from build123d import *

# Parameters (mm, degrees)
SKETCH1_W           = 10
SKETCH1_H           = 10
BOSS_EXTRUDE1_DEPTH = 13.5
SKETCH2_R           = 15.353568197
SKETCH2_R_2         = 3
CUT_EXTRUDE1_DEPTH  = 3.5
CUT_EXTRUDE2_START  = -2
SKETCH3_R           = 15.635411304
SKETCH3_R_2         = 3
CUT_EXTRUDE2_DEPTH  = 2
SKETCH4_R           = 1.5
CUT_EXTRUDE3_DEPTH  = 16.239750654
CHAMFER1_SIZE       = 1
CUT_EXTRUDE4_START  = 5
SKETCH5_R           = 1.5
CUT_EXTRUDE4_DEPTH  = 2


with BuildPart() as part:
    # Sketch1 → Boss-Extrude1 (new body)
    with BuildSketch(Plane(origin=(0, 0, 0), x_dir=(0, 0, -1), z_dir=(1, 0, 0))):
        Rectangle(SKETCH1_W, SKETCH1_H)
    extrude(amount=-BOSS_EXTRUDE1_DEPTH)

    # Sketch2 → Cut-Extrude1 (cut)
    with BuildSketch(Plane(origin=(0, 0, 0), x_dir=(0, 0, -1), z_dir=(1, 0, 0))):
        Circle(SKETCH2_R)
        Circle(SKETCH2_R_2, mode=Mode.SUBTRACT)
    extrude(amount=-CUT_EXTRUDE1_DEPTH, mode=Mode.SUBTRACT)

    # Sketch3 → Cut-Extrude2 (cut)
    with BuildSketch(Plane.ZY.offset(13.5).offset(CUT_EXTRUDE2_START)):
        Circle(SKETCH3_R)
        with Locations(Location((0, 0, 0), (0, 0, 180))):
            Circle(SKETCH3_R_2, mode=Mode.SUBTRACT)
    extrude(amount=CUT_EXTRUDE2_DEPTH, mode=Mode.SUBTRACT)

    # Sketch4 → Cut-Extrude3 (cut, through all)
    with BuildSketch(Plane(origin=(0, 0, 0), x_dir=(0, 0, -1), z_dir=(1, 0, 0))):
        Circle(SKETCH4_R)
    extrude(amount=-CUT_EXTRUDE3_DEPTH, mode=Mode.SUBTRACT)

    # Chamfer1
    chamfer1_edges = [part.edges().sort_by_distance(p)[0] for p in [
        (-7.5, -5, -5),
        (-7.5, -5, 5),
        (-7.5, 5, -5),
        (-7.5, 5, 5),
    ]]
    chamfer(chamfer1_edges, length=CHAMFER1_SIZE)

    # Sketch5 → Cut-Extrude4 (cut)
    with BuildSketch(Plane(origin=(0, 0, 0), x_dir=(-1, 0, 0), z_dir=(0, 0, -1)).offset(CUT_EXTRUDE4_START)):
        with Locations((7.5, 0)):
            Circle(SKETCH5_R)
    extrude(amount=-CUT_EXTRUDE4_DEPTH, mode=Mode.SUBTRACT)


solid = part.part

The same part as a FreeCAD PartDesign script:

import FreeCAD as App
import Part
import Sketcher

V = App.Vector
Q = App.Units.Quantity


def edges_at(feature, points):
    """Names of the edges that pass closest to the given points."""
    edges = feature.Shape.Edges
    near = lambda p: min(range(len(edges)), key=lambda i: edges[i].distToShape(Part.Vertex(*p))[0])
    return sorted({f"Edge{near(p) + 1}" for p in points})


def add_polygon(sketch, points):
    """Adds a closed chain of lines whose ends are joined by coincident constraints."""
    first, n = sketch.GeometryCount, len(points)
    for a, b in zip(points, points[1:] + points[:1]):
        sketch.addGeometry(Part.LineSegment(App.Vector(*a, 0), App.Vector(*b, 0)), False)
    for i in range(n):
        sketch.addConstraint(Sketcher.Constraint("Coincident", first + i, 2, first + (i + 1) % n, 1))

doc = App.newDocument("Part")
body = doc.addObject("PartDesign::Body", "Body")

# Sketch on YZ plane
sketch1 = body.newObject("Sketcher::SketchObject", "Sketch")
sketch1.AttachmentSupport = (doc.getObject("YZ_Plane"), [""])
sketch1.MapMode = "FlatFace"
add_polygon(sketch1, [(5, 5), (-5, 5), (-5, -5), (5, -5)])  # lines 0-3
sketch1.addConstraint(Sketcher.Constraint("Horizontal", 0))
sketch1.addConstraint(Sketcher.Constraint("Vertical", 1))
sketch1.addConstraint(Sketcher.Constraint("Horizontal", 2))
sketch1.addConstraint(Sketcher.Constraint("Vertical", 3))
sketch1.addConstraint(Sketcher.Constraint("Symmetric", 0, 2, 2, 2, -1, 1))
sketch1.addConstraint(Sketcher.Constraint("Equal", 2, 1))
sketch1.addConstraint(Sketcher.Constraint("DistanceX", 0, 2, 0, 1, Q("10 mm")))
pad1 = body.newObject("PartDesign::Pad", "Pad")
pad1.Profile = sketch1
pad1.Length = 13.5
pad1.Reversed = True

# Sketch on YZ plane
sketch2 = body.newObject("Sketcher::SketchObject", "Sketch001")
sketch2.AttachmentSupport = (doc.getObject("YZ_Plane"), [""])
sketch2.MapMode = "FlatFace"
sketch2.addGeometry(Part.Circle(V(0, 0, 0), V(0, 0, 1), 15.4), False)
sketch2.addGeometry(Part.Circle(V(0, 0, 0), V(0, 0, 1), 3), False)
sketch2.addConstraint(Sketcher.Constraint("Coincident", 0, 3, -1, 1))
sketch2.addConstraint(Sketcher.Constraint("Coincident", 1, 3, -1, 1))
sketch2.addConstraint(Sketcher.Constraint("Diameter", 1, Q("6 mm")))
sketch2.addConstraint(Sketcher.Constraint("Diameter", 0, Q("30.707136 mm")))
pocket1 = body.newObject("PartDesign::Pocket", "Pocket")
pocket1.Profile = sketch2
pocket1.Length = 3.5

# Sketch on YZ plane
sketch3 = body.newObject("Sketcher::SketchObject", "Sketch002")
sketch3.AttachmentSupport = (doc.getObject("YZ_Plane"), [""])
sketch3.MapMode = "FlatFace"
sketch3.AttachmentOffset = App.Placement(V(0, 0, -11.5), App.Rotation())
sketch3.addGeometry(Part.Circle(V(0, 0, 0), V(0, 0, 1), 15.6), False)
sketch3.addGeometry(Part.Circle(V(0, 0, 0), V(0, 0, 1), 3), False)
sketch3.addConstraint(Sketcher.Constraint("Coincident", 0, 3, -1, 1))
sketch3.addConstraint(Sketcher.Constraint("Coincident", 1, 3, -1, 1))
sketch3.addConstraint(Sketcher.Constraint("Diameter", 1, Q("6 mm")))
sketch3.addConstraint(Sketcher.Constraint("Diameter", 0, Q("31.270823 mm")))
pocket2 = body.newObject("PartDesign::Pocket", "Pocket001")
pocket2.Profile = sketch3
pocket2.Length = 2

# Sketch on YZ plane
sketch4 = body.newObject("Sketcher::SketchObject", "Sketch003")
sketch4.AttachmentSupport = (doc.getObject("YZ_Plane"), [""])
sketch4.MapMode = "FlatFace"
sketch4.addGeometry(Part.Circle(V(0, 0, 0), V(0, 0, 1), 1.5), False)
sketch4.addConstraint(Sketcher.Constraint("Coincident", 0, 3, -1, 1))
sketch4.addConstraint(Sketcher.Constraint("Diameter", 0, Q("3 mm")))
pocket3 = body.newObject("PartDesign::Pocket", "Pocket002")
pocket3.Profile = sketch4
pocket3.Type = "ThroughAll"
doc.recompute()

chamfer = body.newObject("PartDesign::Chamfer", "Chamfer")
chamfer.Base = (pocket3, edges_at(pocket3, [
    (-7.5, -5, -5),
    (-7.5, -5, 5),
    (-7.5, 5, -5),
    (-7.5, 5, 5),
]))
chamfer.Size = 1

# Sketch on XY plane
sketch5 = body.newObject("Sketcher::SketchObject", "Sketch004")
sketch5.AttachmentSupport = (doc.getObject("XY_Plane"), [""])
sketch5.MapMode = "FlatFace"
sketch5.AttachmentOffset = App.Placement(V(0, 0, -5), App.Rotation())
sketch5.addGeometry(Part.Circle(V(-7.5, 0, 0), V(0, 0, 1), 1.5), False)
sketch5.addConstraint(Sketcher.Constraint("PointOnObject", 0, 3, -1))
sketch5.addConstraint(Sketcher.Constraint("Diameter", 0, Q("3 mm")))
sketch5.addConstraint(Sketcher.Constraint("DistanceX", 0, 3, -1, 1, Q("7.5 mm")))
pocket4 = body.newObject("PartDesign::Pocket", "Pocket003")
pocket4.Profile = sketch5
pocket4.Length = 2
pocket4.Reversed = True

doc.recompute()
